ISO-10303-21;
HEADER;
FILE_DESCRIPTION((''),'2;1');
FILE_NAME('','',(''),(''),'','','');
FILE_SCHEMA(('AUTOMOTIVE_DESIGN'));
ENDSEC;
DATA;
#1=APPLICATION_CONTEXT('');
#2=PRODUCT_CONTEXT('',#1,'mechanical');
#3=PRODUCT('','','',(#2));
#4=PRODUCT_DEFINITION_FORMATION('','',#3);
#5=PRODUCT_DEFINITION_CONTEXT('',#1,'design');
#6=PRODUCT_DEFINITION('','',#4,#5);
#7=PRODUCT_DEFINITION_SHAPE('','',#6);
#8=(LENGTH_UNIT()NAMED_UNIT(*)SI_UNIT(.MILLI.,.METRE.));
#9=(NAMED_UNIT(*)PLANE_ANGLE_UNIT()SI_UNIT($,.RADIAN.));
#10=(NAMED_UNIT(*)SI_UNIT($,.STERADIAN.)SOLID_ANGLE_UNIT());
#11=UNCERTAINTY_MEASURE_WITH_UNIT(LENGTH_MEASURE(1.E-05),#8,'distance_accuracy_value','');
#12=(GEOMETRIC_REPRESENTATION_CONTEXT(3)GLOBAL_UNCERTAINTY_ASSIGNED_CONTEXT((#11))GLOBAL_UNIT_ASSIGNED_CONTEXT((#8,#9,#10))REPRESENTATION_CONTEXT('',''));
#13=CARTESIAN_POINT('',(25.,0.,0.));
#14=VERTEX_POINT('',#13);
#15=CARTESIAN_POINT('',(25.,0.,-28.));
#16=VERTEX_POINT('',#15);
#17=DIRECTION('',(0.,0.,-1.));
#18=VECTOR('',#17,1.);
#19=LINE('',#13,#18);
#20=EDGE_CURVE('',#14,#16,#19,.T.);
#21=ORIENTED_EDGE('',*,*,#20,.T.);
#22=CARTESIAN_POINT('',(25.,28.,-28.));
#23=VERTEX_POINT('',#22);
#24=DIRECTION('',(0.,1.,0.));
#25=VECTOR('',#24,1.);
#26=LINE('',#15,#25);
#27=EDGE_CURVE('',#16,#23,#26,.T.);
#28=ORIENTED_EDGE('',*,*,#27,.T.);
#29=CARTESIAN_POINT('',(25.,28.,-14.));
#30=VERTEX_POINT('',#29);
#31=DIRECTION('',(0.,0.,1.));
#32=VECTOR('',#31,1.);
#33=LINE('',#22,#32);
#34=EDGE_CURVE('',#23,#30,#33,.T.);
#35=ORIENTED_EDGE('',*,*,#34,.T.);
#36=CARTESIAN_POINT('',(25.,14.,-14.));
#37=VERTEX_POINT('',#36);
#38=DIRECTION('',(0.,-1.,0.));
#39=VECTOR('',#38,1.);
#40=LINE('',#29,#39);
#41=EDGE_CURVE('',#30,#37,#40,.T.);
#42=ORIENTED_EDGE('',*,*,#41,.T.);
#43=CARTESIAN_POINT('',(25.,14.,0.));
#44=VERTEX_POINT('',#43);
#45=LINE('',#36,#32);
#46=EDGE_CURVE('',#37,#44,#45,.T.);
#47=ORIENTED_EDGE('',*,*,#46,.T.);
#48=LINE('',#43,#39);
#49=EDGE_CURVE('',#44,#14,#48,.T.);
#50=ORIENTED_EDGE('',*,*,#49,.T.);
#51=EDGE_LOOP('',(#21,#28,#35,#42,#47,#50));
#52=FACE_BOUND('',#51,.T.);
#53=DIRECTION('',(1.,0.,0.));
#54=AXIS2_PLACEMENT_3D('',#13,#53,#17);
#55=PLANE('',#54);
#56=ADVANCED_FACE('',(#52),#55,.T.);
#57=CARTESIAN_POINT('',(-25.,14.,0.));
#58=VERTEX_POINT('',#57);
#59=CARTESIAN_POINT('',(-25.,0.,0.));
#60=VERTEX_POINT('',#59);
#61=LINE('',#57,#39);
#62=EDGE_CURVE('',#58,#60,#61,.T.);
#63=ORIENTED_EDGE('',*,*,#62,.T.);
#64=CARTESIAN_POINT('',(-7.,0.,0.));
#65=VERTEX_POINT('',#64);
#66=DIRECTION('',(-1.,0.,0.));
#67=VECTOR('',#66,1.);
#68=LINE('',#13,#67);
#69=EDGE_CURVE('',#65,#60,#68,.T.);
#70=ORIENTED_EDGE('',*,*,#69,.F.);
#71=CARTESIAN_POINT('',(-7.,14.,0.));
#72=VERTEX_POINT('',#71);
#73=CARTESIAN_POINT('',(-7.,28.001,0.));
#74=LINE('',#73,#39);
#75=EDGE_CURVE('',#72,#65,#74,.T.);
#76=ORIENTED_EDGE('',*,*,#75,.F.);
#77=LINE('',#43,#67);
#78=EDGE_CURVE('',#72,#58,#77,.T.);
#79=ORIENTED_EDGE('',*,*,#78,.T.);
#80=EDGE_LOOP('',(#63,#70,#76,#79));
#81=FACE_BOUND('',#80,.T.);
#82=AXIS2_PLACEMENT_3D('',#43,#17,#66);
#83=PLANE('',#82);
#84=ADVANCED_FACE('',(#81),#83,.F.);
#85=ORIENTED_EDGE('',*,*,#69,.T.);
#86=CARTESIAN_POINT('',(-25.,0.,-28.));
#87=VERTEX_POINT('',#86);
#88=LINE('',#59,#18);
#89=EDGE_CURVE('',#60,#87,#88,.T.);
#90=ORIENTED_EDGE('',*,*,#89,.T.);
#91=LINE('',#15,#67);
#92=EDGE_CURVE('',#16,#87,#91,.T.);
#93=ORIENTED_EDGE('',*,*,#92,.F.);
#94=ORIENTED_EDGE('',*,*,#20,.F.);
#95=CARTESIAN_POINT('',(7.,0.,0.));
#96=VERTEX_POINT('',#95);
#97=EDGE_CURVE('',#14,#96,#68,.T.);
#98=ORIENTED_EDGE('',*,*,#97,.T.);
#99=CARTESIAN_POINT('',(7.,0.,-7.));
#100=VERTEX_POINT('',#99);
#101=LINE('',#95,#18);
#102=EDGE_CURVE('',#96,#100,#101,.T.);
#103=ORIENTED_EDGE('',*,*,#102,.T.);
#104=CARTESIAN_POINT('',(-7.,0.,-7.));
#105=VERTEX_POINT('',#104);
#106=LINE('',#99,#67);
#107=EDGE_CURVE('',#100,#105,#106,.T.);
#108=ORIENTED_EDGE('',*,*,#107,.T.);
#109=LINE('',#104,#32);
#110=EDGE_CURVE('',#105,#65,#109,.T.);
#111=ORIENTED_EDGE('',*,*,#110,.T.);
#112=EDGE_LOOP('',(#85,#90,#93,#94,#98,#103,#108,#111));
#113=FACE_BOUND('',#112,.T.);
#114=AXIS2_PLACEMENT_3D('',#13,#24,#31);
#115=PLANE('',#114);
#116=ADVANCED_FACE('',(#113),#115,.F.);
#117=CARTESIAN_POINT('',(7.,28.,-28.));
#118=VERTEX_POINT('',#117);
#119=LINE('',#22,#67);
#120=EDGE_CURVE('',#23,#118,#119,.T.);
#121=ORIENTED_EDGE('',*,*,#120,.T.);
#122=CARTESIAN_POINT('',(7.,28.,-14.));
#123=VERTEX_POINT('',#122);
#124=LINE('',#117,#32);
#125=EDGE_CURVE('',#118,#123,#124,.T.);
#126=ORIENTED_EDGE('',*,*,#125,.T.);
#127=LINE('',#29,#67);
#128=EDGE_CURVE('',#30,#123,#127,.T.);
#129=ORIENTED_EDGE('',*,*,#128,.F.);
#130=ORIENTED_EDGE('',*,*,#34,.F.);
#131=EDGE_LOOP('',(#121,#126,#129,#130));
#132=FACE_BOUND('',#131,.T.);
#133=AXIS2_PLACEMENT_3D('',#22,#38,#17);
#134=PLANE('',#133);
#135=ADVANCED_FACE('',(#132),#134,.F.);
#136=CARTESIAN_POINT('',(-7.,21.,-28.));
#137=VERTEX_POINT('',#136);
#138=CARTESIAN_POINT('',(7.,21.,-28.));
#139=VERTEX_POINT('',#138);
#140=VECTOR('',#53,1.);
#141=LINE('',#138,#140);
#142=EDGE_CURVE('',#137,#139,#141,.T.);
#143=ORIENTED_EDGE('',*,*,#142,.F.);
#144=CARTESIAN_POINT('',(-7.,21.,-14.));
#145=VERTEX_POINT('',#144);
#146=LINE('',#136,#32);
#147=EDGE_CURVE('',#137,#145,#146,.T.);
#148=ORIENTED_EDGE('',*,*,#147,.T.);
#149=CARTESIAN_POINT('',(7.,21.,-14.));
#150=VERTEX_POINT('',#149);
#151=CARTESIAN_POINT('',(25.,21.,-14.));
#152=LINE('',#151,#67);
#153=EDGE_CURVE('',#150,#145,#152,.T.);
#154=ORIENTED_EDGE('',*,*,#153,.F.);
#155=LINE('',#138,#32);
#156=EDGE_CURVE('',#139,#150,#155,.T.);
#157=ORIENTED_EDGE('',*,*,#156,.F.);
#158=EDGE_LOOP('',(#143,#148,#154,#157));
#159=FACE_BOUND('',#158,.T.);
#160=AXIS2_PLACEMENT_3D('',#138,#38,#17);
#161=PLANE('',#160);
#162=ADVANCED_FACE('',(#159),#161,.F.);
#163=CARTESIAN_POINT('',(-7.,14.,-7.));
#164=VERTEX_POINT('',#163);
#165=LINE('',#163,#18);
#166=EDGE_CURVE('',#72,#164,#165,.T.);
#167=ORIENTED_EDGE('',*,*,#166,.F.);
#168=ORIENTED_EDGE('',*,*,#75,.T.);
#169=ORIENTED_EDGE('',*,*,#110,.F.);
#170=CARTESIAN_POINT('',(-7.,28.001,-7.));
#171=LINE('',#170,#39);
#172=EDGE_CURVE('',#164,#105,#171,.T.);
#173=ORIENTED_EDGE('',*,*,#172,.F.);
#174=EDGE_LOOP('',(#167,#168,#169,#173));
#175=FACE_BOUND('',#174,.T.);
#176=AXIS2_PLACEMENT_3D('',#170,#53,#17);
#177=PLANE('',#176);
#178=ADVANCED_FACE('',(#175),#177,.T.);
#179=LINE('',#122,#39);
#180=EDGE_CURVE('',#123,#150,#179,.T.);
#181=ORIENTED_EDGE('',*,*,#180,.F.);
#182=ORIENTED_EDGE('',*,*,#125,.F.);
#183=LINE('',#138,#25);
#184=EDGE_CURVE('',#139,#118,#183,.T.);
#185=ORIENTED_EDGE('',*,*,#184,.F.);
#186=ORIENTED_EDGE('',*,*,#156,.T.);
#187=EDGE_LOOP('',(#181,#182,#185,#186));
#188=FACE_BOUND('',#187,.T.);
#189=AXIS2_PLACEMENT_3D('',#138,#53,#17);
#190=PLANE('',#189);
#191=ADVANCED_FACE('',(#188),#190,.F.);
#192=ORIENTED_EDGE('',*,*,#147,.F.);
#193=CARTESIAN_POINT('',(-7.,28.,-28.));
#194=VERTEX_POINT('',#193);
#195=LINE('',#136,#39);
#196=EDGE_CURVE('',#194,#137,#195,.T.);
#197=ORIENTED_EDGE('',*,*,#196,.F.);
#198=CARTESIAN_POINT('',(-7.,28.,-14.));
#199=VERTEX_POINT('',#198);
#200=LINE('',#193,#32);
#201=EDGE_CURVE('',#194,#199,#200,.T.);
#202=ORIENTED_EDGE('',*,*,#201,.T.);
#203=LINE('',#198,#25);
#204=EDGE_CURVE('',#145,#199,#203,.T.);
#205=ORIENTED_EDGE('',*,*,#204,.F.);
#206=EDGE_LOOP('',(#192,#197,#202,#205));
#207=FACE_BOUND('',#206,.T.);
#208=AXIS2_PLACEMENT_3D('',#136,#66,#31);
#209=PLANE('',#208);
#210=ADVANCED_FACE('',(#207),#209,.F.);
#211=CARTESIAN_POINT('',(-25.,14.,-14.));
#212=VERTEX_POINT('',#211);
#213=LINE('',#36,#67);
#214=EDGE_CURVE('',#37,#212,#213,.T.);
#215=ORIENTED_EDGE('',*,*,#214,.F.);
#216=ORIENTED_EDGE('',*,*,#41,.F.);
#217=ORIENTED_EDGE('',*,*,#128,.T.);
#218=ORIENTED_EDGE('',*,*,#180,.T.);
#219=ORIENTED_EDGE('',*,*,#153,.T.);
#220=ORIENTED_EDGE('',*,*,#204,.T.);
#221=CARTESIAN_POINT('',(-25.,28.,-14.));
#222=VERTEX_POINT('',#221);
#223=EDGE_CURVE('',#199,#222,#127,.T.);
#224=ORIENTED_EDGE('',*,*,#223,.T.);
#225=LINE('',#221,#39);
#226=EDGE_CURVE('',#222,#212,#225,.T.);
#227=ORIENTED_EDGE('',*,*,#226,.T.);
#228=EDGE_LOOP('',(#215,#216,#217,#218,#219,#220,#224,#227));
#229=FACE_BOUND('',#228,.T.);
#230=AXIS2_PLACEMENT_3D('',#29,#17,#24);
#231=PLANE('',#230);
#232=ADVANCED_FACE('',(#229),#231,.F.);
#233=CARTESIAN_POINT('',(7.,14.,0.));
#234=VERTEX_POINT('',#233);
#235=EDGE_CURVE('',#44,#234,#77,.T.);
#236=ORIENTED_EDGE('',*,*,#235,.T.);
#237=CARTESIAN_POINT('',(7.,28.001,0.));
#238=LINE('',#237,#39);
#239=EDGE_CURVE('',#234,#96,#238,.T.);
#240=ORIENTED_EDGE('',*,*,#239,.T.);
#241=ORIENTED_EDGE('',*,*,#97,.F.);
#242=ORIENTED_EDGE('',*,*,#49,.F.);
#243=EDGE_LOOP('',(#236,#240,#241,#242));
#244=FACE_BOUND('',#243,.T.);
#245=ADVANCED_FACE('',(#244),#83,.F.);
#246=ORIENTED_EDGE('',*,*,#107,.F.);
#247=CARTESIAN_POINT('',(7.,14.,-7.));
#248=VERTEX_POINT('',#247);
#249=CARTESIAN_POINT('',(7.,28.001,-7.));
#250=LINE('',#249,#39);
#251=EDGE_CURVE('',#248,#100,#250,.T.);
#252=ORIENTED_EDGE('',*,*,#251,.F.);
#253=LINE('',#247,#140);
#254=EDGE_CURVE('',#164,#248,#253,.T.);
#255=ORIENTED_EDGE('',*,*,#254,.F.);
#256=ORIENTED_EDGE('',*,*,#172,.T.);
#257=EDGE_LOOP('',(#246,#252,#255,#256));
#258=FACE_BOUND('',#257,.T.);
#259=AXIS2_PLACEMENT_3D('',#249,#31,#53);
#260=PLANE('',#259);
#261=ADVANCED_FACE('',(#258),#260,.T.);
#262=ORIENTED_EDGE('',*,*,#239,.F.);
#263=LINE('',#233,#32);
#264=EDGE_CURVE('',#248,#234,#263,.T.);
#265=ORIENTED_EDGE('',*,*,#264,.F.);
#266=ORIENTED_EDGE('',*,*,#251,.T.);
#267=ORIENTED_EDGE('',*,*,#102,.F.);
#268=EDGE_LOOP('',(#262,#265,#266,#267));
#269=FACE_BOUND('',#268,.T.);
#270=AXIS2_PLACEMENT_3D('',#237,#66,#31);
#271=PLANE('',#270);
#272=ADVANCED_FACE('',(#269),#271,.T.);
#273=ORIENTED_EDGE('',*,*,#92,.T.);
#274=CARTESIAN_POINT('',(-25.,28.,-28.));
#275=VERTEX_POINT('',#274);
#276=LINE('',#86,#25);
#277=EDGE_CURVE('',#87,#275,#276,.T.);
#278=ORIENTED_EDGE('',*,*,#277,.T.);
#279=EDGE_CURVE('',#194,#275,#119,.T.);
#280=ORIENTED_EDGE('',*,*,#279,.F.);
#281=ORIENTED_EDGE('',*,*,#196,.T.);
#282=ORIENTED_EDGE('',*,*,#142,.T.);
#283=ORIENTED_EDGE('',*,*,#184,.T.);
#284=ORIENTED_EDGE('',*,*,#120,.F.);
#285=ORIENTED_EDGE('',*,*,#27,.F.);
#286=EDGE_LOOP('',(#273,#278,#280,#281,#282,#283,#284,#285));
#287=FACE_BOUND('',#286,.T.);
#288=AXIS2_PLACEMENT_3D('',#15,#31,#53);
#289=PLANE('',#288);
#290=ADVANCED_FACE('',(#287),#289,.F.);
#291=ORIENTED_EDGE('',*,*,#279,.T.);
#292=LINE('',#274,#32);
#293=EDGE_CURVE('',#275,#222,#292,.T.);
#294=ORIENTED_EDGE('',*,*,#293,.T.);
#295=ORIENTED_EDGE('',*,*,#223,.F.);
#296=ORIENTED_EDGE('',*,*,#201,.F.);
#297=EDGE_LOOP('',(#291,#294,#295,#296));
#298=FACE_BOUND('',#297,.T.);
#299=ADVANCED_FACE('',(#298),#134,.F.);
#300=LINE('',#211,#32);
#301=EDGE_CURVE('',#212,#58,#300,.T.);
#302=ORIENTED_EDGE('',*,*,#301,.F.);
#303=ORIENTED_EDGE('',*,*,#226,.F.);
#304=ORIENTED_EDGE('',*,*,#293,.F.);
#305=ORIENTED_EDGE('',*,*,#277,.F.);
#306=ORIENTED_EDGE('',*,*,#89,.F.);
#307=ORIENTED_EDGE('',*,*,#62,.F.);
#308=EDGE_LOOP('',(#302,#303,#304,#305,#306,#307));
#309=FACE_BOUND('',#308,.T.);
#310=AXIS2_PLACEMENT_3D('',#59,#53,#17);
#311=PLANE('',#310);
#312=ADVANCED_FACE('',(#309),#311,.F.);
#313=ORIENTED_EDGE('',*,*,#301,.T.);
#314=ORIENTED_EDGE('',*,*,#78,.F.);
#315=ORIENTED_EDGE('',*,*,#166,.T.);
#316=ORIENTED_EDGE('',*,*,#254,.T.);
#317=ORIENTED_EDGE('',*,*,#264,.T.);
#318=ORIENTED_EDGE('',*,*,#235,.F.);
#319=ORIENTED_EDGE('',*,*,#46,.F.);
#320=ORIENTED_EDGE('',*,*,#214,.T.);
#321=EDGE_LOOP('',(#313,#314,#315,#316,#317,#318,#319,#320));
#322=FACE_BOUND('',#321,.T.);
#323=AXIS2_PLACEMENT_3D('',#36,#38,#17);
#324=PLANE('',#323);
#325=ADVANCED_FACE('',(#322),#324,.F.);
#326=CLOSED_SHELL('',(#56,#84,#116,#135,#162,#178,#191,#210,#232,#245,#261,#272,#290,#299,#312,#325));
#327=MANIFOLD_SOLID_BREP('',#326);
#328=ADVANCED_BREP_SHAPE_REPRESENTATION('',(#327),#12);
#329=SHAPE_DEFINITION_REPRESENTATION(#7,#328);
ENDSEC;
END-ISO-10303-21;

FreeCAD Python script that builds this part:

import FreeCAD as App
import Part
import Sketcher
from FreeCAD import Vector
Q = App.Units.Quantity

doc = App.newDocument("Part")
body = doc.addObject("PartDesign::Body", "Body")

# Sketch on YZ plane
sketch1 = doc.addObject("Sketcher::SketchObject", "Sketch")
body.addObject(sketch1)
sketch1.AttachmentSupport = (doc.YZ_Plane, [""])
sketch1.MapMode = "FlatFace"
sketch1.addGeometry([
    Part.LineSegment(Vector(0, 0, 0), Vector(0, -28, 0)),  # 0
    Part.LineSegment(Vector(0, -28, 0), Vector(28, -28, 0)),  # 1
    Part.LineSegment(Vector(28, -28, 0), Vector(28, -14, 0)),  # 2
    Part.LineSegment(Vector(28, -14, 0), Vector(14, -14, 0)),  # 3
    Part.LineSegment(Vector(14, -14, 0), Vector(14, 0, 0)),  # 4
    Part.LineSegment(Vector(14, 0, 0), Vector(0, 0, 0)),  # 5
], False)
sketch1.addConstraint([
    Sketcher.Constraint("Coincident", 0, 2, 1, 1),
    Sketcher.Constraint("Coincident", 1, 2, 2, 1),
    Sketcher.Constraint("Coincident", 2, 2, 3, 1),
    Sketcher.Constraint("Coincident", 3, 2, 4, 1),
    Sketcher.Constraint("Coincident", 4, 2, 5, 1),
    Sketcher.Constraint("Coincident", 5, 2, 0, 1),
    Sketcher.Constraint("Vertical", 0),
    Sketcher.Constraint("Horizontal", 1),
    Sketcher.Constraint("Vertical", 2),
    Sketcher.Constraint("Horizontal", 3),
    Sketcher.Constraint("Vertical", 4),
    Sketcher.Constraint("Horizontal", 5),
    Sketcher.Constraint("Coincident", 5, 2, -1, 1),
    Sketcher.Constraint("Equal", 3, 5),
    Sketcher.Constraint("Equal", 1, 0),
    Sketcher.Constraint("Equal", 5, 2),
    Sketcher.Constraint("DistanceX", 1, 1, 1, 2, Q("28 mm")),
])
pad1 = doc.addObject("PartDesign::Pad", "Pad")
body.addObject(pad1)
pad1.Profile = sketch1
pad1.Length = 50
pad1.Midplane = True

# Sketch on XZ plane
sketch2 = doc.addObject("Sketcher::SketchObject", "Sketch001")
body.addObject(sketch2)
sketch2.AttachmentSupport = (doc.XZ_Plane, [""])
sketch2.MapMode = "FlatFace"
sketch2.addGeometry([
    Part.LineSegment(Vector(-7, -7, 0), Vector(-7, 0, 0)),
    Part.LineSegment(Vector(-7, 0, 0), Vector(7, 0, 0)),
    Part.LineSegment(Vector(7, 0, 0), Vector(7, -7, 0)),
    Part.LineSegment(Vector(7, -7, 0), Vector(-7, -7, 0)),
], False)
sketch2.addConstraint([
    Sketcher.Constraint("Coincident", 0, 2, 1, 1),
    Sketcher.Constraint("Coincident", 1, 2, 2, 1),
    Sketcher.Constraint("Coincident", 2, 2, 3, 1),
    Sketcher.Constraint("Coincident", 3, 2, 0, 1),
    Sketcher.Constraint("Vertical", 0),
    Sketcher.Constraint("Horizontal", 1),
    Sketcher.Constraint("Vertical", 2),
    Sketcher.Constraint("Horizontal", 3),
    Sketcher.Constraint("Symmetric", 0, 2, 1, 2, -1, 1),
    Sketcher.Constraint("DistanceX", 1, 1, 1, 2, Q("14 mm")),
    Sketcher.Constraint("DistanceY", 0, 1, 0, 2, Q("7 mm")),
])
pocket1 = doc.addObject("PartDesign::Pocket", "Pocket")
body.addObject(pocket1)
pocket1.Profile = sketch2
pocket1.Type = "UpToFirst"

# Sketch on XY plane
sketch3 = doc.addObject("Sketcher::SketchObject", "Sketch002")
body.addObject(sketch3)
sketch3.AttachmentSupport = (doc.XY_Plane, [""])
sketch3.MapMode = "FlatFace"
sketch3.addGeometry([
    Part.LineSegment(Vector(-7, 28, 0), Vector(-7, 21, 0)),
    Part.LineSegment(Vector(-7, 21, 0), Vector(7, 21, 0)),
    Part.LineSegment(Vector(7, 21, 0), Vector(7, 28, 0)),
    Part.LineSegment(Vector(7, 28, 0), Vector(-7, 28, 0)),
], False)
sketch3.addConstraint([
    Sketcher.Constraint("Coincident", 0, 2, 1, 1),
    Sketcher.Constraint("Coincident", 1, 2, 2, 1),
    Sketcher.Constraint("Coincident", 2, 2, 3, 1),
    Sketcher.Constraint("Coincident", 3, 2, 0, 1),
    Sketcher.Constraint("Vertical", 0),
    Sketcher.Constraint("Horizontal", 1),
    Sketcher.Constraint("Vertical", 2),
    Sketcher.Constraint("Horizontal", 3),
    Sketcher.Constraint("DistanceX", 1, 1, 1, 2, Q("14 mm")),
    Sketcher.Constraint("DistanceY", 0, 2, 0, 1, Q("7 mm")),
    Sketcher.Constraint("DistanceX", 0, 2, -1, 1, Q("7 mm")),
    Sketcher.Constraint("DistanceY", -1, 1, 0, 2, Q("21 mm")),
])
pocket2 = doc.addObject("PartDesign::Pocket", "Pocket001")
body.addObject(pocket2)
pocket2.Profile = sketch3
pocket2.Type = "ThroughAll"

doc.recompute()
